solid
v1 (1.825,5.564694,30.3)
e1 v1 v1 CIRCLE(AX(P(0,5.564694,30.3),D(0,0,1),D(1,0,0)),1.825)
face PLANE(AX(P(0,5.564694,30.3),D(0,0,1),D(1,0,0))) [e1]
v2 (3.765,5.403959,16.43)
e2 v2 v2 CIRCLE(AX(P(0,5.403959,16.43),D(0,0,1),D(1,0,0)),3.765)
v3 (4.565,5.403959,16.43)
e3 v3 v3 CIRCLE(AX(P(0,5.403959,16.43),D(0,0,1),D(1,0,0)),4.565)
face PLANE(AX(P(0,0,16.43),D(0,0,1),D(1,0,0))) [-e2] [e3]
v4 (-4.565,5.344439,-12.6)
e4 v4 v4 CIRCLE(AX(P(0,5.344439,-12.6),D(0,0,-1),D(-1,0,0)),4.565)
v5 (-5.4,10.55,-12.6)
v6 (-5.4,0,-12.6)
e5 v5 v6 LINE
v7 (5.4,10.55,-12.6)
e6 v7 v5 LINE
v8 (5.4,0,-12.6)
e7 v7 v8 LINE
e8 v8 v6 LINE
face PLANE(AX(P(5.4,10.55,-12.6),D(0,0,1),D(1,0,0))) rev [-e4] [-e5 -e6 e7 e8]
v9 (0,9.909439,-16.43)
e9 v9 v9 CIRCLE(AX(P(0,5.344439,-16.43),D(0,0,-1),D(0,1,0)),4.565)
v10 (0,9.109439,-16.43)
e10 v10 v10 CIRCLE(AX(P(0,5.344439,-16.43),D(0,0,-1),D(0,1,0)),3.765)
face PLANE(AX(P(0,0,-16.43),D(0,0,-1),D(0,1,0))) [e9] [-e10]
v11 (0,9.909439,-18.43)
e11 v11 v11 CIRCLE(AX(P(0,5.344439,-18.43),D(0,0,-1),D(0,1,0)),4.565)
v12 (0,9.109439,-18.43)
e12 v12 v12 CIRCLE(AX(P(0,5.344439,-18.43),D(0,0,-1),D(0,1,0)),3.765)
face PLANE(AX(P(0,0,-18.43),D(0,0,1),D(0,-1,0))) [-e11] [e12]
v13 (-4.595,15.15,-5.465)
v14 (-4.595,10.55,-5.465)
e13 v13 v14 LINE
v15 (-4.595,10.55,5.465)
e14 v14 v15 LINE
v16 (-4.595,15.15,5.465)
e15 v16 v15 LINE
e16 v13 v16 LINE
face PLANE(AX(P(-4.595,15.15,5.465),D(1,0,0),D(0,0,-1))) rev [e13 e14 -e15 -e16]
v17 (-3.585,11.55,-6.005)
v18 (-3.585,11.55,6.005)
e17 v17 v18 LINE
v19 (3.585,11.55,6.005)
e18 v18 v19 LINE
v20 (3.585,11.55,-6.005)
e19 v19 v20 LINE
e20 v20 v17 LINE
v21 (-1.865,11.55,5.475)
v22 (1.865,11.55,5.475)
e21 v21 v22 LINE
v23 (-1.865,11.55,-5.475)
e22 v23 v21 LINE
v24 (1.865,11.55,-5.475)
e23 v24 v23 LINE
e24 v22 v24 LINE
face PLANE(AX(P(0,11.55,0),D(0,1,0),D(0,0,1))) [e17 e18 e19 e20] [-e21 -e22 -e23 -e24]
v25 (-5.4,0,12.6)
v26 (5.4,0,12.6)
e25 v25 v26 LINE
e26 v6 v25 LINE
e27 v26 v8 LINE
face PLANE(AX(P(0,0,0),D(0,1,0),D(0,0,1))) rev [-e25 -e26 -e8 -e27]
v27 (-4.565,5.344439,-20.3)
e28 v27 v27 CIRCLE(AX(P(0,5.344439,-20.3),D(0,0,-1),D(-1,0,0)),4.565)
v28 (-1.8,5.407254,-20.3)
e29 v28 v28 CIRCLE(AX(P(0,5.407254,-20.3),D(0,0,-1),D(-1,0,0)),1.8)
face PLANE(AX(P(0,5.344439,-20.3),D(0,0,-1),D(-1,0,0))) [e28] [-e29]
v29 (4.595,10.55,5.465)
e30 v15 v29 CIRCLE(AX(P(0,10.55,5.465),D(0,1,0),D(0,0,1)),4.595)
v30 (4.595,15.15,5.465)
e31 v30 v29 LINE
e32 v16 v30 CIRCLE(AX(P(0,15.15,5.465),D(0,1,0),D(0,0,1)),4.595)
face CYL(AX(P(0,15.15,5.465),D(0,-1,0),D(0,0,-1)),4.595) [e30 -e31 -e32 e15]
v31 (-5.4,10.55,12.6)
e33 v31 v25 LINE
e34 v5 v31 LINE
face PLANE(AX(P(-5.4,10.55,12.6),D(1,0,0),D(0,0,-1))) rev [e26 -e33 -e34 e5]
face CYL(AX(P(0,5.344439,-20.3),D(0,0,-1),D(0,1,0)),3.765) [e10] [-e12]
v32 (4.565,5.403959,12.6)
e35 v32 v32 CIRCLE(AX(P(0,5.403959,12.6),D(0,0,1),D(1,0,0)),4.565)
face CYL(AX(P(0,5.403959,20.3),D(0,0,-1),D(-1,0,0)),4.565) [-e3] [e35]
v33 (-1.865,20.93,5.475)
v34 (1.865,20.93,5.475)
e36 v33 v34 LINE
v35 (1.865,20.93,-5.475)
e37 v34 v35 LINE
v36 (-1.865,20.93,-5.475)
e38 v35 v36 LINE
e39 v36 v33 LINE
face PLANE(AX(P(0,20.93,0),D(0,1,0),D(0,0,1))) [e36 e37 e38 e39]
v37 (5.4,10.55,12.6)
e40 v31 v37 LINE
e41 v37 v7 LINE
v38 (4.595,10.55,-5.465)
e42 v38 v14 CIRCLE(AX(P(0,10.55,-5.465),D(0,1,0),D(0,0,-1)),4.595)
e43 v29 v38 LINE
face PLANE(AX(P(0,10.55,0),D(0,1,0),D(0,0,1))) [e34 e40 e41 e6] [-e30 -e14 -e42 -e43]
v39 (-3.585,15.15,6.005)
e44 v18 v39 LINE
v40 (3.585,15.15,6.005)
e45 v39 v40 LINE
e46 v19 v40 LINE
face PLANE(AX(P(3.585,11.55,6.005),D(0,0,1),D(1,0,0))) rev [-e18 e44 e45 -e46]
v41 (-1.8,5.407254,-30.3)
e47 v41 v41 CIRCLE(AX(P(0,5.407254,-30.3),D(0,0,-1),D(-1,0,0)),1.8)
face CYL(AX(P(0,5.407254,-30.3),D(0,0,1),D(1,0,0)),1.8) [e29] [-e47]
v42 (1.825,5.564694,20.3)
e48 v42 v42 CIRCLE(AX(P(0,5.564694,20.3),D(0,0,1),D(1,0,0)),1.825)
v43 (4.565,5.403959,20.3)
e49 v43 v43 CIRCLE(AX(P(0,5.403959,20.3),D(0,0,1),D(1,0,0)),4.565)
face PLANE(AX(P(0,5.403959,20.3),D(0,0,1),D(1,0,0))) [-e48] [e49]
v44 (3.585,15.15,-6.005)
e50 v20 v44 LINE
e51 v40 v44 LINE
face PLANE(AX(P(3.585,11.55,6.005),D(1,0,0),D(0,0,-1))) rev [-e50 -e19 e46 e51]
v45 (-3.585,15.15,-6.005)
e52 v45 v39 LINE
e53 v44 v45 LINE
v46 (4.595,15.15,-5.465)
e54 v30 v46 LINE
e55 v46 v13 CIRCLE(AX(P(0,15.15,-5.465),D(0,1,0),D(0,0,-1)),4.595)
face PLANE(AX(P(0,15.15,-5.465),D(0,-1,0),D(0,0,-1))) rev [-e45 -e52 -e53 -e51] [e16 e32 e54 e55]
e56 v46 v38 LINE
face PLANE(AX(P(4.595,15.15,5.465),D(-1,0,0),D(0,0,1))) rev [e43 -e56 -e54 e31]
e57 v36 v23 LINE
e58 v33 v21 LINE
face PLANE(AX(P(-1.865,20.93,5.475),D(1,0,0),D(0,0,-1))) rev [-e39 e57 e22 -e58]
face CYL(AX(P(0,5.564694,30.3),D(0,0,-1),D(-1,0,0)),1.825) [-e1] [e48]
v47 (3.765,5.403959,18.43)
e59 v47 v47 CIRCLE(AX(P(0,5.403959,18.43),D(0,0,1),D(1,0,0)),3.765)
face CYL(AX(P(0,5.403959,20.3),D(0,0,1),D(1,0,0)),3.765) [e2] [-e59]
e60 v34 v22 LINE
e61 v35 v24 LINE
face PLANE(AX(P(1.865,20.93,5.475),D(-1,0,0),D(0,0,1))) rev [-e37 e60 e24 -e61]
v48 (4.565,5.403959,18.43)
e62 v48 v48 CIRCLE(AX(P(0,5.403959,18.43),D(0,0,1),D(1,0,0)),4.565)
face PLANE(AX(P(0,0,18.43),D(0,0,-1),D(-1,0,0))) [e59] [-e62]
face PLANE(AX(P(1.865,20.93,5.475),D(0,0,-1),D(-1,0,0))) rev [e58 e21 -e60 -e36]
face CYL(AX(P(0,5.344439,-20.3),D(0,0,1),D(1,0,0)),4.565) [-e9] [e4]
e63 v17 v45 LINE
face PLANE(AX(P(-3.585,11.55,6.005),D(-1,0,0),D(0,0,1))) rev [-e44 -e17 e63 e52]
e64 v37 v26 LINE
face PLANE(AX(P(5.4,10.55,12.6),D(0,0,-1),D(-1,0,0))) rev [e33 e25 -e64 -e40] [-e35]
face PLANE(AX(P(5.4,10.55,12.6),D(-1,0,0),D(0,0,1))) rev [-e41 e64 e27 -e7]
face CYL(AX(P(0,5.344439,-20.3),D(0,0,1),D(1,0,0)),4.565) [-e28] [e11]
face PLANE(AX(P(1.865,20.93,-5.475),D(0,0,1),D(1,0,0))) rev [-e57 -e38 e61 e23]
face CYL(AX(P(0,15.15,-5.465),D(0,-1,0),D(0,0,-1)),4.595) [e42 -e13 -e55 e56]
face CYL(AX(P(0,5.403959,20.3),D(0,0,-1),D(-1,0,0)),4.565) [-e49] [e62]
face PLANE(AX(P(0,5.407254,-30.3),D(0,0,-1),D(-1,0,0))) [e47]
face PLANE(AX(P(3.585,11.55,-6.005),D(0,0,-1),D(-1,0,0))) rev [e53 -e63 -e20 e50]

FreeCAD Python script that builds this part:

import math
import FreeCAD as App
import Part
import Sketcher
from FreeCAD import Vector


def add_polygon(sketch, points):
    """Adds a closed chain of lines whose ends are joined by coincident constraints."""
    first, n = sketch.GeometryCount, len(points)
    for a, b in zip(points, points[1:] + points[:1]):
        sketch.addGeometry(Part.LineSegment(App.Vector(*a, 0), App.Vector(*b, 0)), False)
    for i in range(n):
        sketch.addConstraint(Sketcher.Constraint("Coincident", first + i, 2, first + (i + 1) % n, 1))

doc = App.newDocument("Part")
body = doc.addObject("PartDesign::Body", "Body")

sketch1 = body.newObject("Sketcher::SketchObject", "Sketch")
sketch1.AttachmentSupport = (doc.getObject("XZ_Plane"), [""])
sketch1.MapMode = "FlatFace"
add_polygon(sketch1, [(-5.4, -12.6), (-5.4, 12.6), (5.4, 12.6), (5.4, -12.6)])
sketch1.addConstraint([
    Sketcher.Constraint("Vertical", 0),
    Sketcher.Constraint("Horizontal", 1),
    Sketcher.Constraint("Vertical", 2),
    Sketcher.Constraint("Horizontal", 3),
    Sketcher.Constraint("Symmetric", 0, 2, 2, 2, -1, 1),
    Sketcher.Constraint("DistanceX", 1, 1, 1, 2, 10.8),
    Sketcher.Constraint("DistanceY", 0, 1, 0, 2, 25.2),
])
pad1 = body.newObject("PartDesign::Pad", "Pad")
pad1.Profile = sketch1
pad1.Length = 10.55
pad1.Reversed = True

sketch2 = body.newObject("Sketcher::SketchObject", "Sketch001")
sketch2.AttachmentSupport = (doc.getObject("XY_Plane"), [""])
sketch2.MapMode = "FlatFace"
sketch2.AttachmentOffset = App.Placement(Vector(0, 0, 12.6), App.Rotation())
sketch2.addGeometry(Part.Circle(Vector(0, 5.403959, 0), Vector(0, 0, 1), 4.565), False)
sketch2.addConstraint([
    Sketcher.Constraint("PointOnObject", 0, 3, -2),
    Sketcher.Constraint("Diameter", 0, 9.13),
    Sketcher.Constraint("DistanceY", -1, 1, 0, 3, 5.403959),
])
pad2 = body.newObject("PartDesign::Pad", "Pad001")
pad2.Profile = sketch2
pad2.Length = 7.7

sketch3 = body.newObject("Sketcher::SketchObject", "Sketch002")
sketch3.AttachmentSupport = (doc.getObject("XY_Plane"), [""])
sketch3.MapMode = "FlatFace"
sketch3.AttachmentOffset = App.Placement(Vector(0, 0, -12.6), App.Rotation())
sketch3.addGeometry(Part.Circle(Vector(0, 5.344439, 0), Vector(0, 0, 1), 4.565), False)
sketch3.addConstraint([
    Sketcher.Constraint("PointOnObject", 0, 3, -2),
    Sketcher.Constraint("Diameter", 0, 9.13),
    Sketcher.Constraint("DistanceY", -1, 1, 0, 3, 5.344439),
])
pad3 = body.newObject("PartDesign::Pad", "Pad002")
pad3.Profile = sketch3
pad3.Length = 7.7
pad3.Reversed = True

sketch4 = body.newObject("Sketcher::SketchObject", "Sketch003")
sketch4.AttachmentSupport = (doc.getObject("YZ_Plane"), [""])
sketch4.MapMode = "FlatFace"
add_polygon(sketch4, [(9.968959, 18.43), (9.168959, 18.43), (9.168959, 16.43), (9.968959, 16.43)])
sketch4.addGeometry(Part.LineSegment(Vector(5.403959, 18.43, 0), Vector(5.403959, 16.43, 0)), True)
sketch4.addConstraint([
    Sketcher.Constraint("Horizontal", 0),
    Sketcher.Constraint("Vertical", 1),
    Sketcher.Constraint("Horizontal", 2),
    Sketcher.Constraint("Vertical", 3),
    Sketcher.Constraint("Vertical", 4),
    Sketcher.Constraint("Horizontal", 3, 2, 4, 1),
    Sketcher.Constraint("Horizontal", 2, 2, 4, 2),
    Sketcher.Constraint("DistanceY", 1, 2, 1, 1, 2.0),
    Sketcher.Constraint("DistanceX", 0, 2, 0, 1, 0.8),
    Sketcher.Constraint("DistanceY", -1, 1, 0, 2, 18.43),
    Sketcher.Constraint("DistanceX", 4, 1, 0, 2, 3.765),
    Sketcher.Constraint("DistanceX", -1, 1, 0, 2, 9.168959),
])
groove = body.newObject("PartDesign::Groove", "Groove")
groove.Profile = sketch4
groove.ReferenceAxis = (sketch4, ["Axis0"])
groove.Angle = 360

sketch5 = body.newObject("Sketcher::SketchObject", "Sketch004")
sketch5.AttachmentSupport = (doc.getObject("YZ_Plane"), [""])
sketch5.MapMode = "FlatFace"
add_polygon(sketch5, [(9.909439, -16.43), (9.109439, -16.43), (9.109439, -18.43), (9.909439, -18.43)])
sketch5.addGeometry(Part.LineSegment(Vector(5.344439, -18.43, 0), Vector(5.344439, -16.43, 0)), True)
sketch5.addConstraint([
    Sketcher.Constraint("Horizontal", 0),
    Sketcher.Constraint("Vertical", 1),
    Sketcher.Constraint("Horizontal", 2),
    Sketcher.Constraint("Vertical", 3),
    Sketcher.Constraint("Vertical", 4),
    Sketcher.Constraint("Horizontal", 2, 2, 4, 1),
    Sketcher.Constraint("Horizontal", 3, 2, 4, 2),
    Sketcher.Constraint("DistanceY", 1, 2, 1, 1, 2.0),
    Sketcher.Constraint("DistanceX", 0, 2, 0, 1, 0.8),
    Sketcher.Constraint("DistanceY", 0, 2, -1, 1, 16.43),
    Sketcher.Constraint("DistanceX", 4, 1, 1, 2, 3.765),
    Sketcher.Constraint("DistanceX", -1, 1, 0, 2, 9.109439),
])
groove2 = body.newObject("PartDesign::Groove", "Groove001")
groove2.Profile = sketch5
groove2.ReferenceAxis = (sketch5, ["Axis0"])
groove2.Angle = 360

sketch6 = body.newObject("Sketcher::SketchObject", "Sketch005")
sketch6.AttachmentSupport = (doc.getObject("XZ_Plane"), [""])
sketch6.MapMode = "FlatFace"
sketch6.AttachmentOffset = App.Placement(Vector(0, 0, -10.55), App.Rotation())
sketch6.addGeometry([
    Part.LineSegment(Vector(4.595, 5.465, 0), Vector(4.595, -5.465, 0)),
    Part.ArcOfCircle(Part.Circle(Vector(0, -5.465, 0), Vector(0, 0, 1), 4.595), math.radians(180), math.radians(360)),
    Part.LineSegment(Vector(-4.595, -5.465, 0), Vector(-4.595, 5.465, 0)),
    Part.ArcOfCircle(Part.Circle(Vector(0, 5.465, 0), Vector(0, 0, 1), 4.595), math.radians(0), math.radians(180)),
], False)
sketch6.addConstraint([
    Sketcher.Constraint("Tangent", 0, 2, 1, 2),
    Sketcher.Constraint("Tangent", 1, 1, 2, 1),
    Sketcher.Constraint("Tangent", 2, 2, 3, 2),
    Sketcher.Constraint("Tangent", 3, 1, 0, 1),
    Sketcher.Constraint("Vertical", 0),
    Sketcher.Constraint("Vertical", 2),
    Sketcher.Constraint("Symmetric", 1, 3, 3, 3, -1, 1),
    Sketcher.Constraint("Radius", 1, 4.595),
    Sketcher.Constraint("DistanceY", 0, 2, 0, 1, 10.93),
])
pad4 = body.newObject("PartDesign::Pad", "Pad003")
pad4.Profile = sketch6
pad4.Length = 4.6
pad4.Reversed = True

sketch7 = body.newObject("Sketcher::SketchObject", "Sketch006")
sketch7.AttachmentSupport = (doc.getObject("XZ_Plane"), [""])
sketch7.MapMode = "FlatFace"
sketch7.AttachmentOffset = App.Placement(Vector(0, 0, -15.15), App.Rotation())
add_polygon(sketch7, [(-3.585, -6.005), (-3.585, 6.005), (3.585, 6.005), (3.585, -6.005)])
sketch7.addConstraint([
    Sketcher.Constraint("Vertical", 0),
    Sketcher.Constraint("Horizontal", 1),
    Sketcher.Constraint("Vertical", 2),
    Sketcher.Constraint("Horizontal", 3),
    Sketcher.Constraint("Symmetric", 0, 2, 2, 2, -1, 1),
    Sketcher.Constraint("DistanceX", 1, 1, 1, 2, 7.17),
    Sketcher.Constraint("DistanceY", 0, 1, 0, 2, 12.01),
])
pocket1 = body.newObject("PartDesign::Pocket", "Pocket")
pocket1.Profile = sketch7
pocket1.Length = 3.6
pocket1.Reversed = True

sketch8 = body.newObject("Sketcher::SketchObject", "Sketch007")
sketch8.AttachmentSupport = (doc.getObject("XZ_Plane"), [""])
sketch8.MapMode = "FlatFace"
sketch8.AttachmentOffset = App.Placement(Vector(0, 0, -11.55), App.Rotation())
add_polygon(sketch8, [(-1.865, -5.475), (-1.865, 5.475), (1.865, 5.475), (1.865, -5.475)])
sketch8.addConstraint([
    Sketcher.Constraint("Vertical", 0),
    Sketcher.Constraint("Horizontal", 1),
    Sketcher.Constraint("Vertical", 2),
    Sketcher.Constraint("Horizontal", 3),
    Sketcher.Constraint("Symmetric", 0, 2, 2, 2, -1, 1),
    Sketcher.Constraint("DistanceX", 1, 1, 1, 2, 3.73),
    Sketcher.Constraint("DistanceY", 0, 1, 0, 2, 10.95),
])
pad5 = body.newObject("PartDesign::Pad", "Pad004")
pad5.Profile = sketch8
pad5.Length = 9.38
pad5.Reversed = True

sketch9 = body.newObject("Sketcher::SketchObject", "Sketch008")
sketch9.AttachmentSupport = (doc.getObject("XY_Plane"), [""])
sketch9.MapMode = "FlatFace"
sketch9.AttachmentOffset = App.Placement(Vector(0, 0, -20.3), App.Rotation())
sketch9.addGeometry(Part.Circle(Vector(0, 5.407254, 0), Vector(0, 0, 1), 1.8), False)
sketch9.addConstraint([
    Sketcher.Constraint("PointOnObject", 0, 3, -2),
    Sketcher.Constraint("Diameter", 0, 3.6),
    Sketcher.Constraint("DistanceY", -1, 1, 0, 3, 5.407254),
])
pad6 = body.newObject("PartDesign::Pad", "Pad005")
pad6.Profile = sketch9
pad6.Length = 10
pad6.Reversed = True

sketch10 = body.newObject("Sketcher::SketchObject", "Sketch009")
sketch10.AttachmentSupport = (doc.getObject("XY_Plane"), [""])
sketch10.MapMode = "FlatFace"
sketch10.AttachmentOffset = App.Placement(Vector(0, 0, 20.3), App.Rotation())
sketch10.addGeometry(Part.Circle(Vector(0, 5.564694, 0), Vector(0, 0, 1), 1.825), False)
sketch10.addConstraint([
    Sketcher.Constraint("PointOnObject", 0, 3, -2),
    Sketcher.Constraint("Diameter", 0, 3.65),
    Sketcher.Constraint("DistanceY", -1, 1, 0, 3, 5.564694),
])
pad7 = body.newObject("PartDesign::Pad", "Pad006")
pad7.Profile = sketch10
pad7.Length = 10

doc.recompute()
